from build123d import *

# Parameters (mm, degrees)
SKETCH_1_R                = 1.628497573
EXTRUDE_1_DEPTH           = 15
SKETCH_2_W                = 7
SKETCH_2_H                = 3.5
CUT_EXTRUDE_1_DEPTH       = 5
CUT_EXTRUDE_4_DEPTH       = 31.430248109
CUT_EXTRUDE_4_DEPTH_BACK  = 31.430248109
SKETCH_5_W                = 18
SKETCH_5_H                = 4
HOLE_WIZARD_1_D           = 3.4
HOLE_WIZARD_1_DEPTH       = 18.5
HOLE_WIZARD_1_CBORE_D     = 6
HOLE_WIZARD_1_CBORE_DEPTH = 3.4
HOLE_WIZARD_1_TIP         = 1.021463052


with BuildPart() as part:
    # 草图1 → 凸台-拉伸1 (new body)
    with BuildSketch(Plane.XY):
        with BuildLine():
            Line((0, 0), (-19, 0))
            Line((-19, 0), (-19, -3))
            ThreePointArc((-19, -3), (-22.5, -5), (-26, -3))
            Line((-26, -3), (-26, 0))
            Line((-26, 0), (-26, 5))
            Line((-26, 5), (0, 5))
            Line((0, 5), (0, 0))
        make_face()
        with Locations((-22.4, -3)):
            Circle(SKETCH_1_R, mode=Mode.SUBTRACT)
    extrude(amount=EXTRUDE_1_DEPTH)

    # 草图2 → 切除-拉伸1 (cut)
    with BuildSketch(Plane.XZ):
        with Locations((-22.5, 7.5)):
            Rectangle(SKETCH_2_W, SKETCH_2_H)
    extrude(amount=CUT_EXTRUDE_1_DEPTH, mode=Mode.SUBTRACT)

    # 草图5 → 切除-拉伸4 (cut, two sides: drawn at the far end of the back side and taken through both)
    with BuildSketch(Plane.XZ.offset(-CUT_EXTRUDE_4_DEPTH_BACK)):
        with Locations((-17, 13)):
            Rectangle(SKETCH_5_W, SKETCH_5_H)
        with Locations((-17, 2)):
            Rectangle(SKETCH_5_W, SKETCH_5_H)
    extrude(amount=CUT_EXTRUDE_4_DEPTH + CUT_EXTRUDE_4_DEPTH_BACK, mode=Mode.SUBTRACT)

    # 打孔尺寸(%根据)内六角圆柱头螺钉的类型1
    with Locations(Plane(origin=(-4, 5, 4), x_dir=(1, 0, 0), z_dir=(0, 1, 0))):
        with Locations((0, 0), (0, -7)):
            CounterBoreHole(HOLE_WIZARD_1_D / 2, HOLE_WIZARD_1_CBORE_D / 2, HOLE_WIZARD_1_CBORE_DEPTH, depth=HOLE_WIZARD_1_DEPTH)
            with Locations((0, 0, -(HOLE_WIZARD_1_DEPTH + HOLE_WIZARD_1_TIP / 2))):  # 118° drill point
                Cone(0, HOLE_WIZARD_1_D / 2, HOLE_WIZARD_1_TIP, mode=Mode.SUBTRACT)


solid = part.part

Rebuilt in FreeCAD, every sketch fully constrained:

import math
import FreeCAD as App
import Part
import Sketcher
from FreeCAD import Vector
Q = App.Units.Quantity


def add_polygon(sketch, points):
    """Adds a closed chain of lines whose ends are joined by coincident constraints."""
    first, n = sketch.GeometryCount, len(points)
    for a, b in zip(points, points[1:] + points[:1]):
        sketch.addGeometry(Part.LineSegment(App.Vector(*a, 0), App.Vector(*b, 0)), False)
    for i in range(n):
        sketch.addConstraint(Sketcher.Constraint("Coincident", first + i, 2, first + (i + 1) % n, 1))

doc = App.newDocument("Part")
params = doc.addObject("Spreadsheet::Sheet", "Params")
for row, (alias, value) in enumerate([
    ("sketch1_width", "19 mm"),
    ("sketch1_width2", "26 mm"),
    ("sketch1_height", "5 mm"),
    ("sketch1_height2", "8 mm"),
    ("pad1_length", "15 mm"),
    ("sketch2_width", "7 mm"),
    ("sketch2_height", "3.5 mm"),
    ("pocket1_length", "5 mm"),
    ("sketch3_width", "18 mm"),
    ("sketch3_height", "4 mm"),
    ("sketch4_diameter", "3.4 mm"),
    ("hole_diameter", "3.4 mm"),
    ("hole_depth", "18.5 mm"),
    ("hole_cbore_diameter", "6 mm"),
    ("hole_cbore_depth", "3.4 mm"),
], start=1):
    params.set(f"A{row}", alias)
    params.set(f"B{row}", "=" + value)
    params.setAlias(f"B{row}", alias)

body = doc.addObject("PartDesign::Body", "Body")

# Sketch on XY plane
sketch1 = doc.addObject("Sketcher::SketchObject", "Sketch")
body.addObject(sketch1)
sketch1.AttachmentSupport = (doc.XY_Plane, [""])
sketch1.MapMode = "FlatFace"
sketch1.addGeometry([
    Part.LineSegment(Vector(-19, 0, 0), Vector(0, 0, 0)),  # 0
    Part.LineSegment(Vector(0, 0, 0), Vector(0, 5, 0)),  # 1
    Part.LineSegment(Vector(0, 5, 0), Vector(-26, 5, 0)),  # 2
    Part.LineSegment(Vector(-26, 5, 0), Vector(-26, -3, 0)),  # 3
    Part.ArcOfCircle(Part.Circle(Vector(-22.5, -0.9, 0), Vector(0, 0, 1), 4.1), math.radians(-149), math.radians(-31)),  # 4
    Part.LineSegment(Vector(-19, -3, 0), Vector(-19, 0, 0)),  # 5
    Part.Circle(Vector(-22.4, -3, 0), Vector(0, 0, 1), 1.6),  # 6
], False)
sketch1.addConstraint([
    Sketcher.Constraint("Coincident", 0, 2, 1, 1),
    Sketcher.Constraint("Coincident", 1, 2, 2, 1),
    Sketcher.Constraint("Coincident", 2, 2, 3, 1),
    Sketcher.Constraint("Coincident", 3, 2, 4, 1),
    Sketcher.Constraint("Coincident", 4, 2, 5, 1),
    Sketcher.Constraint("Coincident", 5, 2, 0, 1),
    Sketcher.Constraint("Horizontal", 0),
    Sketcher.Constraint("Vertical", 1),
    Sketcher.Constraint("Horizontal", 2),
    Sketcher.Constraint("Vertical", 3),
    Sketcher.Constraint("Vertical", 5),
    Sketcher.Constraint("Coincident", 0, 2, -1, 1),
    Sketcher.Constraint("Horizontal", 6, 3, 3, 2),
    Sketcher.Constraint("Horizontal", 3, 2, 4, 2),
    Sketcher.Constraint("DistanceX", 0, 1, 0, 2, Q("19 mm")),
    Sketcher.Constraint("DistanceX", 2, 2, 2, 1, Q("26 mm")),
    Sketcher.Constraint("DistanceY", 1, 1, 1, 2, Q("5 mm")),
    Sketcher.Constraint("DistanceY", 3, 2, 3, 1, Q("8 mm")),
    Sketcher.Constraint("DistanceX", 6, 3, -1, 1, Q("22.4 mm")),
    Sketcher.Constraint("Radius", 4, Q("4.0625 mm")),
    Sketcher.Constraint("Diameter", 6, Q("3.256995 mm")),
])
sketch1.setExpression("Constraints[14]", "Params.sketch1_width")
sketch1.setExpression("Constraints[15]", "Params.sketch1_width2")
sketch1.setExpression("Constraints[16]", "Params.sketch1_height")
sketch1.setExpression("Constraints[17]", "Params.sketch1_height2")
pad1 = doc.addObject("PartDesign::Pad", "Pad")
body.addObject(pad1)
pad1.Profile = sketch1
pad1.setExpression("Length", "Params.pad1_length")

# Sketch on XZ plane
sketch2 = doc.addObject("Sketcher::SketchObject", "Sketch001")
body.addObject(sketch2)
sketch2.AttachmentSupport = (doc.XZ_Plane, [""])
sketch2.MapMode = "FlatFace"
add_polygon(sketch2, [(-26, 9.2), (-26, 5.8), (-19, 5.8), (-19, 9.2)])  # lines 0-3
sketch2.addConstraint([
    Sketcher.Constraint("Vertical", 0),
    Sketcher.Constraint("Horizontal", 1),
    Sketcher.Constraint("Vertical", 2),
    Sketcher.Constraint("Horizontal", 3),
    Sketcher.Constraint("DistanceX", 1, 1, 1, 2, Q("7 mm")),
    Sketcher.Constraint("DistanceY", 0, 2, 0, 1, Q("3.5 mm")),
    Sketcher.Constraint("DistanceX", 0, 2, -1, 1, Q("26 mm")),
    Sketcher.Constraint("DistanceY", -1, 1, 0, 2, Q("5.75 mm")),
])
sketch2.setExpression("Constraints[8]", "Params.sketch2_width")
sketch2.setExpression("Constraints[9]", "Params.sketch2_height")
pocket1 = doc.addObject("PartDesign::Pocket", "Pocket")
body.addObject(pocket1)
pocket1.Profile = sketch2
pocket1.setExpression("Length", "Params.pocket1_length")
pocket1.Reversed = True

# Sketch on XZ plane
sketch3 = doc.addObject("Sketcher::SketchObject", "Sketch002")
body.addObject(sketch3)
sketch3.AttachmentSupport = (doc.XZ_Plane, [""])
sketch3.MapMode = "FlatFace"
add_polygon(sketch3, [(-26, 15), (-26, 11), (-8, 11), (-8, 15)])  # lines 0-3
add_polygon(sketch3, [(-26, 4), (-26, 0), (-8, 0), (-8, 4)])  # lines 4-7
sketch3.addConstraint([
    Sketcher.Constraint("Vertical", 0),
    Sketcher.Constraint("Horizontal", 1),
    Sketcher.Constraint("Vertical", 2),
    Sketcher.Constraint("Horizontal", 3),
    Sketcher.Constraint("Vertical", 4),
    Sketcher.Constraint("Horizontal", 5),
    Sketcher.Constraint("Vertical", 6),
    Sketcher.Constraint("Horizontal", 7),
    Sketcher.Constraint("PointOnObject", 4, 2, -1),
    Sketcher.Constraint("Vertical", 3, 2, 4, 2),
    Sketcher.Constraint("Vertical", 2, 2, 5, 2),
    Sketcher.Constraint("Equal", 2, 4),
    Sketcher.Constraint("DistanceX", 1, 1, 1, 2, Q("18 mm")),
    Sketcher.Constraint("DistanceY", 0, 2, 0, 1, Q("4 mm")),
    Sketcher.Constraint("DistanceX", 0, 2, -1, 1, Q("26 mm")),
    Sketcher.Constraint("DistanceY", -1, 1, 0, 2, Q("11 mm")),
])
sketch3.setExpression("Constraints[20]", "Params.sketch3_width")
sketch3.setExpression("Constraints[21]", "Params.sketch3_height")
pocket2 = doc.addObject("PartDesign::Pocket", "Pocket001")
body.addObject(pocket2)
pocket2.Profile = sketch3
pocket2.Type = "ThroughAll"
pocket2.Midplane = True

# Sketch on XZ plane
sketch4 = doc.addObject("Sketcher::SketchObject", "Sketch003")
body.addObject(sketch4)
sketch4.AttachmentSupport = (doc.XZ_Plane, [""])
sketch4.MapMode = "FlatFace"
sketch4.AttachmentOffset = App.Placement(Vector(0, 0, -5), App.Rotation())
sketch4.addGeometry([
    Part.Circle(Vector(-4, 4, 0), Vector(0, 0, 1), 1.7),
    Part.Circle(Vector(-4, 11, 0), Vector(0, 0, 1), 1.7),
], False)
sketch4.addConstraint([
    Sketcher.Constraint("Equal", 0, 1),
    Sketcher.Constraint("Vertical", 0, 3, 1, 3),
    Sketcher.Constraint("Diameter", 0, Q("3.4 mm")),
    Sketcher.Constraint("DistanceX", 0, 3, -1, 1, Q("4 mm")),
    Sketcher.Constraint("DistanceY", -1, 1, 0, 3, Q("4 mm")),
    Sketcher.Constraint("DistanceY", -1, 1, 1, 3, Q("11 mm")),
])
sketch4.setExpression("Constraints[2]", "Params.sketch4_diameter")
doc.recompute()
hole = doc.addObject("PartDesign::Hole", "Hole")
body.addObject(hole)
hole.Profile = sketch4
hole.ThreadType = "None"
hole.setExpression("Diameter", "Params.hole_diameter")
hole.DepthType = "Dimension"
hole.setExpression("Depth", "Params.hole_depth")
hole.DrillPoint = "Angled"
hole.DrillPointAngle = 118
hole.HoleCutType = "Counterbore"
hole.setExpression("HoleCutDiameter", "Params.hole_cbore_diameter")
hole.setExpression("HoleCutDepth", "Params.hole_cbore_depth")
hole.Reversed = True

doc.recompute()
